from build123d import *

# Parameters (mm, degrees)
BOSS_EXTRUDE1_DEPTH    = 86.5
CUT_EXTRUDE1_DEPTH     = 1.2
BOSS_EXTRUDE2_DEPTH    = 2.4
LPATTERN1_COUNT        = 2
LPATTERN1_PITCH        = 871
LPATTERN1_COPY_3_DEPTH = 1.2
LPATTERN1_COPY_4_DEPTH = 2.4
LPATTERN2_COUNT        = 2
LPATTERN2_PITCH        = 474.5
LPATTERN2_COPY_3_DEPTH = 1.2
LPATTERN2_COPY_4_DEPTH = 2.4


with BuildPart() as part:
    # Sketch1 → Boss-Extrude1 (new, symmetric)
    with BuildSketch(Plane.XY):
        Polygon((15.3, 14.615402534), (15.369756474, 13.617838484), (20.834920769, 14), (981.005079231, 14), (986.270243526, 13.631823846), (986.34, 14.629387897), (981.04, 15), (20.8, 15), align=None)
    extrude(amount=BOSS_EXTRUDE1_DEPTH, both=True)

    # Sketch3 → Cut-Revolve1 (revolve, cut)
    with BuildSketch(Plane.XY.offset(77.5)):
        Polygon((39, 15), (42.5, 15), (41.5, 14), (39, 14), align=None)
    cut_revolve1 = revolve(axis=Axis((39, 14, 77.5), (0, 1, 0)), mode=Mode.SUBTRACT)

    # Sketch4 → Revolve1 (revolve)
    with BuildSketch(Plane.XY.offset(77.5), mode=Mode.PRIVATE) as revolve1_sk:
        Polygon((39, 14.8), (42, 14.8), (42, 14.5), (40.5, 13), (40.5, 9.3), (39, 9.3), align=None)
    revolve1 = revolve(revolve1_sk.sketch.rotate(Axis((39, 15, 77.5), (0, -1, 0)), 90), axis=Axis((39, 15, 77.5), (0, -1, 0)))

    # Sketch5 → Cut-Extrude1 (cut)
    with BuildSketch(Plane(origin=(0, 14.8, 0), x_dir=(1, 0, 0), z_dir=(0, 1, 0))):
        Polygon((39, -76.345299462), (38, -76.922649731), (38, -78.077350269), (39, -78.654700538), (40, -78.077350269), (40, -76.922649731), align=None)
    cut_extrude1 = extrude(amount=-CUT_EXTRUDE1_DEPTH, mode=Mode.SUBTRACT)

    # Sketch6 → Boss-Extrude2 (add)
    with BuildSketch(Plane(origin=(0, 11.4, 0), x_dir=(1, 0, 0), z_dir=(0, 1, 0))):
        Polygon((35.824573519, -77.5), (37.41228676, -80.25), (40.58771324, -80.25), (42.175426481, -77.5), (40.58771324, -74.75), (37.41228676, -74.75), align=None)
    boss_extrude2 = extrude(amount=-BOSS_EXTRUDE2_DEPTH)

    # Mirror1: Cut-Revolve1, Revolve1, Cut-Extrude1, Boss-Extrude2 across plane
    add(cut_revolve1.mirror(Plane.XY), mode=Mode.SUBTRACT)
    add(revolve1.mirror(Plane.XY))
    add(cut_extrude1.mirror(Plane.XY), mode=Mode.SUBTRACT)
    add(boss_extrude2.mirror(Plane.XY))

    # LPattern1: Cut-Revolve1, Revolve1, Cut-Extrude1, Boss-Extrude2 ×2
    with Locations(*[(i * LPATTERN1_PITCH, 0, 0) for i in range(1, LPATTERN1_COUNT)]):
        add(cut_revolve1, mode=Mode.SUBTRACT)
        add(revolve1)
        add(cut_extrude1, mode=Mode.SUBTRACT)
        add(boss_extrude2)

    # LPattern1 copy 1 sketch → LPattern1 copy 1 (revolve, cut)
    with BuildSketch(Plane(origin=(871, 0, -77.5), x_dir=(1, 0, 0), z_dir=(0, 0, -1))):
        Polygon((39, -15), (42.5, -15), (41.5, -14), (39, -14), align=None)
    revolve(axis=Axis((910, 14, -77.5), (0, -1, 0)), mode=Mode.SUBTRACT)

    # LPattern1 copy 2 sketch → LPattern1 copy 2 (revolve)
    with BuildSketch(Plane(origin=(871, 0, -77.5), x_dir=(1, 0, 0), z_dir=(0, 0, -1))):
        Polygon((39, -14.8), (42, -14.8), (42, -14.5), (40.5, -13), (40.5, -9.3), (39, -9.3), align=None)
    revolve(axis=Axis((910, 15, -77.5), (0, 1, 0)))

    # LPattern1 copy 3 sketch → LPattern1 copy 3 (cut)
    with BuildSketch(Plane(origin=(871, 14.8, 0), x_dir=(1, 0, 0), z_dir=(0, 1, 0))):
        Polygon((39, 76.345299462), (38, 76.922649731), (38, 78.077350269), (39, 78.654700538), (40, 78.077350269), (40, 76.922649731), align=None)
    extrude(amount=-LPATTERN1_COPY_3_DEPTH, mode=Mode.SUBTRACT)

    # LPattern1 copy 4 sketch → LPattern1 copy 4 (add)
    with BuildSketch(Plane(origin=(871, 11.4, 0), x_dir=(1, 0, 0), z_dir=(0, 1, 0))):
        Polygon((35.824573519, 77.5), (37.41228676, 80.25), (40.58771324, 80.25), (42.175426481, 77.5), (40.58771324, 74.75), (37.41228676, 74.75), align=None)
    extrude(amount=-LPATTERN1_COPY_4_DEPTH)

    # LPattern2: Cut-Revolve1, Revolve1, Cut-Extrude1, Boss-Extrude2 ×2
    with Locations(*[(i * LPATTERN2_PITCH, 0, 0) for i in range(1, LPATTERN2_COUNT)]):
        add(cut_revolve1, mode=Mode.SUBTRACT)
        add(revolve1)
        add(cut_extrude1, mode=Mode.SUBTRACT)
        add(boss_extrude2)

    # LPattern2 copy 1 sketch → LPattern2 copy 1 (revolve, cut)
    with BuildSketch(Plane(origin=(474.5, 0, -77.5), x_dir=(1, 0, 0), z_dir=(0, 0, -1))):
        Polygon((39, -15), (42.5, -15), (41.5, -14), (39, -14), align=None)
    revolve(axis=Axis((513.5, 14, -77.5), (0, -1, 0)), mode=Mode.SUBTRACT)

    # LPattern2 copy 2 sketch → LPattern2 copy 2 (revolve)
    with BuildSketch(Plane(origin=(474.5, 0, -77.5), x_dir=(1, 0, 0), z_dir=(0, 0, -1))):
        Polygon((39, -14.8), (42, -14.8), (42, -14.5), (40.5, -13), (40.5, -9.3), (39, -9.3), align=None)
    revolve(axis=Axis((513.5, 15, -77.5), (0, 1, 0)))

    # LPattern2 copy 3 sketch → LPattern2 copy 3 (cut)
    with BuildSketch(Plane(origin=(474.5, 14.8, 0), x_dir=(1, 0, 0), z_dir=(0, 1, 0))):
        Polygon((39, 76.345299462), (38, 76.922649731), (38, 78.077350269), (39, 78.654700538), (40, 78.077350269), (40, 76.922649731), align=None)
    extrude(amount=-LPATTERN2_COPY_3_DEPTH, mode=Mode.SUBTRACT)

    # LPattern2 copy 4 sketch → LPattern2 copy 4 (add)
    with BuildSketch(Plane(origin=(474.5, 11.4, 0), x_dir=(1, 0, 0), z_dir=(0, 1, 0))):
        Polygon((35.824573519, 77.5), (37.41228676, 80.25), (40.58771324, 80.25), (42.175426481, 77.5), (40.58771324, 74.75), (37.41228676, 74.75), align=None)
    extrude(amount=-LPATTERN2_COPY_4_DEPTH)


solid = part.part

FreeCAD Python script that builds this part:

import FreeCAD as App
import Part
import Sketcher
Q = App.Units.Quantity

doc = App.newDocument("Part")
body = doc.addObject("PartDesign::Body", "Body")

# Sketch on XY plane
sketch1 = body.newObject("Sketcher::SketchObject", "Sketch")
sketch1.AttachmentSupport = (doc.getObject("XY_Plane"), [""])
sketch1.MapMode = "FlatFace"
sketch1.addGeometry([
    Part.LineSegment(App.Vector(15.3, 14.6, 0), App.Vector(15.4, 13.6, 0)),  # 0
    Part.LineSegment(App.Vector(15.4, 13.6, 0), App.Vector(20.8, 14, 0)),  # 1
    Part.LineSegment(App.Vector(20.8, 14, 0), App.Vector(981, 14, 0)),  # 2
    Part.LineSegment(App.Vector(981, 14, 0), App.Vector(986.3, 13.6, 0)),  # 3
    Part.LineSegment(App.Vector(986.3, 13.6, 0), App.Vector(986.3, 14.6, 0)),  # 4
    Part.LineSegment(App.Vector(986.3, 14.6, 0), App.Vector(981, 15, 0)),  # 5
    Part.LineSegment(App.Vector(981, 15, 0), App.Vector(20.8, 15, 0)),  # 6
    Part.LineSegment(App.Vector(20.8, 15, 0), App.Vector(15.3, 14.6, 0)),  # 7
], False)
sketch1.addConstraint([
    Sketcher.Constraint("Coincident", 0, 2, 1, 1),
    Sketcher.Constraint("Coincident", 1, 2, 2, 1),
    Sketcher.Constraint("Coincident", 2, 2, 3, 1),
    Sketcher.Constraint("Coincident", 3, 2, 4, 1),
    Sketcher.Constraint("Coincident", 4, 2, 5, 1),
    Sketcher.Constraint("Coincident", 5, 2, 6, 1),
    Sketcher.Constraint("Coincident", 6, 2, 7, 1),
    Sketcher.Constraint("Coincident", 7, 2, 0, 1),
    Sketcher.Constraint("Horizontal", 2),
    Sketcher.Constraint("Horizontal", 6),
    Sketcher.Constraint("Perpendicular", 0, 1),
    Sketcher.Constraint("Perpendicular", 3, 4),
    Sketcher.Constraint("Perpendicular", 4, 5),
    Sketcher.Constraint("Parallel", 1, 7),
    Sketcher.Constraint("Equal", 0, 4),
    Sketcher.Constraint("Angle", 0, Q("-86 deg")),
    Sketcher.Constraint("Angle", 3, Q("-4 deg")),
    Sketcher.Constraint("Distance", 0, 1.0),
    Sketcher.Constraint("DistanceY", -1, 1, 1, 2, 14.0),
    Sketcher.Constraint("DistanceY", -1, 1, 5, 2, 15.0),
    Sketcher.Constraint("DistanceX", 6, 2, 6, 1, 960.24),
    Sketcher.Constraint("DistanceX", -1, 1, 6, 2, 20.8),
    Sketcher.Constraint("DistanceX", -1, 1, 7, 2, 15.3),
    Sketcher.Constraint("DistanceX", 5, 2, 4, 2, 5.3),
])
pad1 = body.newObject("PartDesign::Pad", "Pad")
pad1.Profile = sketch1
pad1.Length = 173
pad1.Midplane = True

# Sketch on XY plane
sketch2 = body.newObject("Sketcher::SketchObject", "Sketch001")
sketch2.AttachmentSupport = (doc.getObject("XY_Plane"), [""])
sketch2.MapMode = "FlatFace"
sketch2.AttachmentOffset = App.Placement(App.Vector(0, 0, 77.5), App.Rotation())
sketch2.addGeometry([
    Part.LineSegment(App.Vector(42.5, 15, 0), App.Vector(39, 15, 0)),
    Part.LineSegment(App.Vector(39, 15, 0), App.Vector(39, 14, 0)),
    Part.LineSegment(App.Vector(39, 14, 0), App.Vector(41.5, 14, 0)),
    Part.LineSegment(App.Vector(41.5, 14, 0), App.Vector(42.5, 15, 0)),
], False)
sketch2.addGeometry(Part.LineSegment(App.Vector(39, 14, 0), App.Vector(39, 15, 0)), True)  # axis
sketch2.addConstraint([
    Sketcher.Constraint("Coincident", 0, 2, 1, 1),
    Sketcher.Constraint("Coincident", 1, 2, 2, 1),
    Sketcher.Constraint("Coincident", 2, 2, 3, 1),
    Sketcher.Constraint("Coincident", 3, 2, 0, 1),
    Sketcher.Constraint("Horizontal", 0),
    Sketcher.Constraint("Vertical", 1),
    Sketcher.Constraint("Horizontal", 2),
    Sketcher.Constraint("Vertical", 4),
    Sketcher.Constraint("Coincident", 4, 1, 1, 2),
    Sketcher.Constraint("Horizontal", 3, 2, 4, 2),
    Sketcher.Constraint("DistanceY", 1, 2, 1, 1, 1.0),
    Sketcher.Constraint("Angle", 3, Q("45 deg")),
    Sketcher.Constraint("DistanceX", 0, 2, 0, 1, 3.5),
    Sketcher.Constraint("DistanceX", -1, 1, 0, 2, 39.0),
    Sketcher.Constraint("DistanceY", -1, 1, 0, 2, 15.0),
])
groove = body.newObject("PartDesign::Groove", "Groove")
groove.Profile = sketch2
groove.ReferenceAxis = (sketch2, ["Axis0"])
groove.Angle = 360

# Sketch on XY plane
sketch3 = body.newObject("Sketcher::SketchObject", "Sketch002")
sketch3.AttachmentSupport = (doc.getObject("XY_Plane"), [""])
sketch3.MapMode = "FlatFace"
sketch3.AttachmentOffset = App.Placement(App.Vector(0, 0, 77.5), App.Rotation())
sketch3.addGeometry([
    Part.LineSegment(App.Vector(42, 14.8, 0), App.Vector(39, 14.8, 0)),  # 0
    Part.LineSegment(App.Vector(39, 14.8, 0), App.Vector(39, 9.3, 0)),  # 1
    Part.LineSegment(App.Vector(39, 9.3, 0), App.Vector(40.5, 9.3, 0)),  # 2
    Part.LineSegment(App.Vector(40.5, 9.3, 0), App.Vector(40.5, 13, 0)),  # 3
    Part.LineSegment(App.Vector(40.5, 13, 0), App.Vector(42, 14.5, 0)),  # 4
    Part.LineSegment(App.Vector(42, 14.5, 0), App.Vector(42, 14.8, 0)),  # 5
], False)
sketch3.addGeometry(Part.LineSegment(App.Vector(39, 14.8, 0), App.Vector(39, 9.3, 0)), True)  # axis
sketch3.addConstraint([
    Sketcher.Constraint("Coincident", 0, 2, 1, 1),
    Sketcher.Constraint("Coincident", 1, 2, 2, 1),
    Sketcher.Constraint("Coincident", 2, 2, 3, 1),
    Sketcher.Constraint("Coincident", 3, 2, 4, 1),
    Sketcher.Constraint("Coincident", 4, 2, 5, 1),
    Sketcher.Constraint("Coincident", 5, 2, 0, 1),
    Sketcher.Constraint("Horizontal", 0),
    Sketcher.Constraint("Vertical", 1),
    Sketcher.Constraint("Horizontal", 2),
    Sketcher.Constraint("Vertical", 3),
    Sketcher.Constraint("Vertical", 5),
    Sketcher.Constraint("Vertical", 6),
    Sketcher.Constraint("Coincident", 6, 1, 0, 2),
    Sketcher.Constraint("Horizontal", 2, 2, 6, 2),
    Sketcher.Constraint("DistanceX", 0, 2, 0, 1, 3.0),
    Sketcher.Constraint("Angle", 4, Q("45 deg")),
    Sketcher.Constraint("DistanceX", 2, 1, 2, 2, 1.5),
    Sketcher.Constraint("DistanceY", 1, 2, 1, 1, 5.5),
    Sketcher.Constraint("DistanceY", 3, 1, 3, 2, 3.7),
    Sketcher.Constraint("DistanceX", -1, 1, 0, 2, 39.0),
    Sketcher.Constraint("DistanceY", -1, 1, 3, 2, 13.0),
])
revolution = body.newObject("PartDesign::Revolution", "Revolution")
revolution.Profile = sketch3
revolution.ReferenceAxis = (sketch3, ["Axis0"])
revolution.Angle = 360

# Sketch on XZ plane
sketch4 = body.newObject("Sketcher::SketchObject", "Sketch003")
sketch4.AttachmentSupport = (doc.getObject("XZ_Plane"), [""])
sketch4.MapMode = "FlatFace"
sketch4.AttachmentOffset = App.Placement(App.Vector(0, 0, -14.8), App.Rotation())
sketch4.addGeometry([
    Part.LineSegment(App.Vector(39, 76.3, 0), App.Vector(38, 76.9, 0)),  # 0
    Part.LineSegment(App.Vector(38, 76.9, 0), App.Vector(38, 78.1, 0)),  # 1
    Part.LineSegment(App.Vector(38, 78.1, 0), App.Vector(39, 78.7, 0)),  # 2
    Part.LineSegment(App.Vector(39, 78.7, 0), App.Vector(40, 78.1, 0)),  # 3
    Part.LineSegment(App.Vector(40, 78.1, 0), App.Vector(40, 76.9, 0)),  # 4
    Part.LineSegment(App.Vector(40, 76.9, 0), App.Vector(39, 76.3, 0)),  # 5
], False)
sketch4.addConstraint([
    Sketcher.Constraint("Coincident", 0, 2, 1, 1),
    Sketcher.Constraint("Coincident", 1, 2, 2, 1),
    Sketcher.Constraint("Coincident", 2, 2, 3, 1),
    Sketcher.Constraint("Coincident", 3, 2, 4, 1),
    Sketcher.Constraint("Coincident", 4, 2, 5, 1),
    Sketcher.Constraint("Coincident", 5, 2, 0, 1),
    Sketcher.Constraint("Vertical", 1),
    Sketcher.Constraint("Vertical", 4),
    Sketcher.Constraint("Parallel", 0, 3),
    Sketcher.Constraint("Parallel", 2, 5),
    Sketcher.Constraint("Horizontal", 1, 2, 3, 2),
    Sketcher.Constraint("Horizontal", 0, 2, 4, 2),
    Sketcher.Constraint("Vertical", 2, 2, 5, 2),
    Sketcher.Constraint("Angle", 0, Q("150 deg")),
    Sketcher.Constraint("DistanceX", -1, 1, 0, 2, 38.0),
    Sketcher.Constraint("DistanceX", -1, 1, 2, 2, 39.0),
    Sketcher.Constraint("DistanceY", 1, 1, 1, 2, 1.154701),
    Sketcher.Constraint("DistanceY", -1, 1, 2, 2, 78.654701),
])
pocket1 = body.newObject("PartDesign::Pocket", "Pocket")
pocket1.Profile = sketch4
pocket1.Length = 1.2
pocket1.Reversed = True

# Sketch on XZ plane
sketch5 = body.newObject("Sketcher::SketchObject", "Sketch004")
sketch5.AttachmentSupport = (doc.getObject("XZ_Plane"), [""])
sketch5.MapMode = "FlatFace"
sketch5.AttachmentOffset = App.Placement(App.Vector(0, 0, -11.4), App.Rotation())
sketch5.addGeometry([
    Part.LineSegment(App.Vector(35.8, 77.5, 0), App.Vector(37.4, 80.2, 0)),  # 0
    Part.LineSegment(App.Vector(37.4, 80.2, 0), App.Vector(40.6, 80.2, 0)),  # 1
    Part.LineSegment(App.Vector(40.6, 80.2, 0), App.Vector(42.2, 77.5, 0)),  # 2
    Part.LineSegment(App.Vector(42.2, 77.5, 0), App.Vector(40.6, 74.8, 0)),  # 3
    Part.LineSegment(App.Vector(40.6, 74.8, 0), App.Vector(37.4, 74.8, 0)),  # 4
    Part.LineSegment(App.Vector(37.4, 74.8, 0), App.Vector(35.8, 77.5, 0)),  # 5
], False)
sketch5.addConstraint([
    Sketcher.Constraint("Coincident", 0, 2, 1, 1),
    Sketcher.Constraint("Coincident", 1, 2, 2, 1),
    Sketcher.Constraint("Coincident", 2, 2, 3, 1),
    Sketcher.Constraint("Coincident", 3, 2, 4, 1),
    Sketcher.Constraint("Coincident", 4, 2, 5, 1),
    Sketcher.Constraint("Coincident", 5, 2, 0, 1),
    Sketcher.Constraint("Horizontal", 1),
    Sketcher.Constraint("Horizontal", 4),
    Sketcher.Constraint("Parallel", 0, 3),
    Sketcher.Constraint("Parallel", 2, 5),
    Sketcher.Constraint("Horizontal", 2, 2, 5, 2),
    Sketcher.Constraint("Vertical", 1, 2, 3, 2),
    Sketcher.Constraint("Vertical", 0, 2, 4, 2),
    Sketcher.Constraint("Angle", 0, Q("60 deg")),
    Sketcher.Constraint("DistanceY", -1, 1, 2, 2, 77.5),
    Sketcher.Constraint("DistanceY", 3, 2, 1, 2, 5.5),
    Sketcher.Constraint("DistanceX", 1, 1, 1, 2, 3.175426),
    Sketcher.Constraint("DistanceX", -1, 1, 0, 2, 37.412287),
])
pad2 = body.newObject("PartDesign::Pad", "Pad001")
pad2.Profile = sketch5
pad2.Length = 2.4
doc.recompute()

mirrored = body.newObject("PartDesign::Mirrored", "Mirrored")
mirrored.Originals = [groove, revolution, pocket1, pad2]
mirrored.MirrorPlane = (doc.getObject("XY_Plane"), [""])
body.Tip = mirrored
doc.recompute()

linearpattern = body.newObject("PartDesign::LinearPattern", "LinearPattern")
linearpattern.Originals = [groove, revolution, pocket1, pad2]
linearpattern.Direction = (doc.getObject("X_Axis"), [""])
linearpattern.Mode = "offset"
linearpattern.Offset = 871
linearpattern.Occurrences = 2
body.Tip = linearpattern

# Sketch on XY plane
sketch6 = body.newObject("Sketcher::SketchObject", "Sketch005")
sketch6.AttachmentSupport = (doc.getObject("XY_Plane"), [""])
sketch6.MapMode = "FlatFace"
sketch6.AttachmentOffset = App.Placement(App.Vector(0, 0, -77.5), App.Rotation())
sketch6.addGeometry([
    Part.LineSegment(App.Vector(910, 15, 0), App.Vector(913.5, 15, 0)),
    Part.LineSegment(App.Vector(913.5, 15, 0), App.Vector(912.5, 14, 0)),
    Part.LineSegment(App.Vector(912.5, 14, 0), App.Vector(910, 14, 0)),
    Part.LineSegment(App.Vector(910, 14, 0), App.Vector(910, 15, 0)),
], False)
sketch6.addGeometry(Part.LineSegment(App.Vector(910, 15, 0), App.Vector(910, 14, 0)), True)  # axis
sketch6.addConstraint([
    Sketcher.Constraint("Coincident", 0, 2, 1, 1),
    Sketcher.Constraint("Coincident", 1, 2, 2, 1),
    Sketcher.Constraint("Coincident", 2, 2, 3, 1),
    Sketcher.Constraint("Coincident", 3, 2, 0, 1),
    Sketcher.Constraint("Horizontal", 0),
    Sketcher.Constraint("Horizontal", 2),
    Sketcher.Constraint("Vertical", 3),
    Sketcher.Constraint("Vertical", 4),
    Sketcher.Constraint("Coincident", 4, 1, 3, 2),
    Sketcher.Constraint("Horizontal", 1, 2, 4, 2),
    Sketcher.Constraint("DistanceY", 3, 1, 3, 2, 1.0),
    Sketcher.Constraint("Angle", 1, Q("-135 deg")),
    Sketcher.Constraint("DistanceX", 0, 1, 0, 2, 3.5),
    Sketcher.Constraint("DistanceY", -1, 1, 0, 2, 15.0),
    Sketcher.Constraint("DistanceX", -1, 1, 2, 2, 910.0),
])
groove2 = body.newObject("PartDesign::Groove", "Groove001")
groove2.Profile = sketch6
groove2.ReferenceAxis = (sketch6, ["Axis0"])
groove2.Angle = 360

# Sketch on XY plane
sketch7 = body.newObject("Sketcher::SketchObject", "Sketch006")
sketch7.AttachmentSupport = (doc.getObject("XY_Plane"), [""])
sketch7.MapMode = "FlatFace"
sketch7.AttachmentOffset = App.Placement(App.Vector(0, 0, -77.5), App.Rotation())
sketch7.addGeometry([
    Part.LineSegment(App.Vector(910, 14.8, 0), App.Vector(913, 14.8, 0)),  # 0
    Part.LineSegment(App.Vector(913, 14.8, 0), App.Vector(913, 14.5, 0)),  # 1
    Part.LineSegment(App.Vector(913, 14.5, 0), App.Vector(911.5, 13, 0)),  # 2
    Part.LineSegment(App.Vector(911.5, 13, 0), App.Vector(911.5, 9.3, 0)),  # 3
    Part.LineSegment(App.Vector(911.5, 9.3, 0), App.Vector(910, 9.3, 0)),  # 4
    Part.LineSegment(App.Vector(910, 9.3, 0), App.Vector(910, 14.8, 0)),  # 5
], False)
sketch7.addGeometry(Part.LineSegment(App.Vector(910, 9.3, 0), App.Vector(910, 14.8, 0)), True)  # axis
sketch7.addConstraint([
    Sketcher.Constraint("Coincident", 0, 2, 1, 1),
    Sketcher.Constraint("Coincident", 1, 2, 2, 1),
    Sketcher.Constraint("Coincident", 2, 2, 3, 1),
    Sketcher.Constraint("Coincident", 3, 2, 4, 1),
    Sketcher.Constraint("Coincident", 4, 2, 5, 1),
    Sketcher.Constraint("Coincident", 5, 2, 0, 1),
    Sketcher.Constraint("Horizontal", 0),
    Sketcher.Constraint("Vertical", 1),
    Sketcher.Constraint("Vertical", 3),
    Sketcher.Constraint("Horizontal", 4),
    Sketcher.Constraint("Vertical", 5),
    Sketcher.Constraint("Vertical", 6),
    Sketcher.Constraint("Coincident", 6, 1, 4, 2),
    Sketcher.Constraint("Horizontal", 0, 2, 6, 2),
    Sketcher.Constraint("DistanceX", 0, 1, 0, 2, 3.0),
    Sketcher.Constraint("Angle", 2, Q("-135 deg")),
    Sketcher.Constraint("DistanceX", 4, 2, 4, 1, 1.5),
    Sketcher.Constraint("DistanceY", 1, 2, 1, 1, 0.3),
    Sketcher.Constraint("DistanceY", 3, 2, 3, 1, 3.7),
    Sketcher.Constraint("DistanceX", -1, 1, 0, 2, 913.0),
    Sketcher.Constraint("DistanceY", -1, 1, 2, 2, 13.0),
])
revolution2 = body.newObject("PartDesign::Revolution", "Revolution001")
revolution2.Profile = sketch7
revolution2.ReferenceAxis = (sketch7, ["Axis0"])
revolution2.Angle = 360

# Sketch on XZ plane
sketch8 = body.newObject("Sketcher::SketchObject", "Sketch007")
sketch8.AttachmentSupport = (doc.getObject("XZ_Plane"), [""])
sketch8.MapMode = "FlatFace"
sketch8.AttachmentOffset = App.Placement(App.Vector(0, 0, -14.8), App.Rotation())
sketch8.addGeometry([
    Part.LineSegment(App.Vector(909, -76.9, 0), App.Vector(910, -76.3, 0)),  # 0
    Part.LineSegment(App.Vector(910, -76.3, 0), App.Vector(911, -76.9, 0)),  # 1
    Part.LineSegment(App.Vector(911, -76.9, 0), App.Vector(911, -78.1, 0)),  # 2
    Part.LineSegment(App.Vector(911, -78.1, 0), App.Vector(910, -78.7, 0)),  # 3
    Part.LineSegment(App.Vector(910, -78.7, 0), App.Vector(909, -78.1, 0)),  # 4
    Part.LineSegment(App.Vector(909, -78.1, 0), App.Vector(909, -76.9, 0)),  # 5
], False)
sketch8.addConstraint([
    Sketcher.Constraint("Coincident", 0, 2, 1, 1),
    Sketcher.Constraint("Coincident", 1, 2, 2, 1),
    Sketcher.Constraint("Coincident", 2, 2, 3, 1),
    Sketcher.Constraint("Coincident", 3, 2, 4, 1),
    Sketcher.Constraint("Coincident", 4, 2, 5, 1),
    Sketcher.Constraint("Coincident", 5, 2, 0, 1),
    Sketcher.Constraint("Vertical", 2),
    Sketcher.Constraint("Vertical", 5),
    Sketcher.Constraint("Parallel", 0, 3),
    Sketcher.Constraint("Parallel", 1, 4),
    Sketcher.Constraint("Horizontal", 2, 2, 4, 2),
    Sketcher.Constraint("Horizontal", 1, 2, 5, 2),
    Sketcher.Constraint("Vertical", 0, 2, 3, 2),
    Sketcher.Constraint("Angle", 0, Q("30 deg")),
    Sketcher.Constraint("DistanceX", -1, 1, 0, 2, 910.0),
    Sketcher.Constraint("DistanceX", -1, 1, 1, 2, 911.0),
    Sketcher.Constraint("DistanceY", 2, 2, 2, 1, 1.154701),
    Sketcher.Constraint("DistanceY", 0, 2, -1, 1, 76.345299),
])
pocket2 = body.newObject("PartDesign::Pocket", "Pocket001")
pocket2.Profile = sketch8
pocket2.Length = 1.2
pocket2.Reversed = True

# Sketch on XZ plane
sketch9 = body.newObject("Sketcher::SketchObject", "Sketch008")
sketch9.AttachmentSupport = (doc.getObject("XZ_Plane"), [""])
sketch9.MapMode = "FlatFace"
sketch9.AttachmentOffset = App.Placement(App.Vector(0, 0, -11.4), App.Rotation())
sketch9.addGeometry([
    Part.LineSegment(App.Vector(908.4, -80.2, 0), App.Vector(906.8, -77.5, 0)),  # 0
    Part.LineSegment(App.Vector(906.8, -77.5, 0), App.Vector(908.4, -74.8, 0)),  # 1
    Part.LineSegment(App.Vector(908.4, -74.8, 0), App.Vector(911.6, -74.8, 0)),  # 2
    Part.LineSegment(App.Vector(911.6, -74.8, 0), App.Vector(913.2, -77.5, 0)),  # 3
    Part.LineSegment(App.Vector(913.2, -77.5, 0), App.Vector(911.6, -80.2, 0)),  # 4
    Part.LineSegment(App.Vector(911.6, -80.2, 0), App.Vector(908.4, -80.2, 0)),  # 5
], False)
sketch9.addConstraint([
    Sketcher.Constraint("Coincident", 0, 2, 1, 1),
    Sketcher.Constraint("Coincident", 1, 2, 2, 1),
    Sketcher.Constraint("Coincident", 2, 2, 3, 1),
    Sketcher.Constraint("Coincident", 3, 2, 4, 1),
    Sketcher.Constraint("Coincident", 4, 2, 5, 1),
    Sketcher.Constraint("Coincident", 5, 2, 0, 1),
    Sketcher.Constraint("Horizontal", 2),
    Sketcher.Constraint("Horizontal", 5),
    Sketcher.Constraint("Parallel", 0, 3),
    Sketcher.Constraint("Parallel", 1, 4),
    Sketcher.Constraint("Horizontal", 0, 2, 3, 2),
    Sketcher.Constraint("Vertical", 2, 2, 4, 2),
    Sketcher.Constraint("Vertical", 1, 2, 5, 2),
    Sketcher.Constraint("Angle", 0, Q("120 deg")),
    Sketcher.Constraint("DistanceY", 0, 2, -1, 1, 77.5),
    Sketcher.Constraint("DistanceY", 4, 2, 2, 2, 5.5),
    Sketcher.Constraint("DistanceX", 2, 1, 2, 2, 3.175426),
    Sketcher.Constraint("DistanceX", -1, 1, 0, 2, 906.824574),
])
pad3 = body.newObject("PartDesign::Pad", "Pad002")
pad3.Profile = sketch9
pad3.Length = 2.4
doc.recompute()

linearpattern2 = body.newObject("PartDesign::LinearPattern", "LinearPattern001")
linearpattern2.Originals = [groove, revolution, pocket1, pad2]
linearpattern2.Direction = (doc.getObject("X_Axis"), [""])
linearpattern2.Mode = "offset"
linearpattern2.Offset = 474.5
linearpattern2.Occurrences = 2
body.Tip = linearpattern2

# Sketch on XY plane
sketch10 = body.newObject("Sketcher::SketchObject", "Sketch009")
sketch10.AttachmentSupport = (doc.getObject("XY_Plane"), [""])
sketch10.MapMode = "FlatFace"
sketch10.AttachmentOffset = App.Placement(App.Vector(0, 0, -77.5), App.Rotation())
sketch10.addGeometry([
    Part.LineSegment(App.Vector(513.5, 15, 0), App.Vector(517, 15, 0)),
    Part.LineSegment(App.Vector(517, 15, 0), App.Vector(516, 14, 0)),
    Part.LineSegment(App.Vector(516, 14, 0), App.Vector(513.5, 14, 0)),
    Part.LineSegment(App.Vector(513.5, 14, 0), App.Vector(513.5, 15, 0)),
], False)
sketch10.addGeometry(Part.LineSegment(App.Vector(513.5, 15, 0), App.Vector(513.5, 14, 0)), True)  # axis
sketch10.addConstraint([
    Sketcher.Constraint("Coincident", 0, 2, 1, 1),
    Sketcher.Constraint("Coincident", 1, 2, 2, 1),
    Sketcher.Constraint("Coincident", 2, 2, 3, 1),
    Sketcher.Constraint("Coincident", 3, 2, 0, 1),
    Sketcher.Constraint("Horizontal", 0),
    Sketcher.Constraint("Horizontal", 2),
    Sketcher.Constraint("Vertical", 3),
    Sketcher.Constraint("Vertical", 4),
    Sketcher.Constraint("Coincident", 4, 1, 3, 2),
    Sketcher.Constraint("Horizontal", 1, 2, 4, 2),
    Sketcher.Constraint("DistanceY", 3, 1, 3, 2, 1.0),
    Sketcher.Constraint("Angle", 1, Q("-135 deg")),
    Sketcher.Constraint("DistanceX", 0, 1, 0, 2, 3.5),
    Sketcher.Constraint("DistanceX", -1, 1, 0, 2, 517.0),
    Sketcher.Constraint("DistanceY", -1, 1, 0, 2, 15.0),
])
groove3 = body.newObject("PartDesign::Groove", "Groove002")
groove3.Profile = sketch10
groove3.ReferenceAxis = (sketch10, ["Axis0"])
groove3.Angle = 360

# Sketch on XY plane
sketch11 = body.newObject("Sketcher::SketchObject", "Sketch010")
sketch11.AttachmentSupport = (doc.getObject("XY_Plane"), [""])
sketch11.MapMode = "FlatFace"
sketch11.AttachmentOffset = App.Placement(App.Vector(0, 0, -77.5), App.Rotation())
sketch11.addGeometry([
    Part.LineSegment(App.Vector(513.5, 14.8, 0), App.Vector(516.5, 14.8, 0)),  # 0
    Part.LineSegment(App.Vector(516.5, 14.8, 0), App.Vector(516.5, 14.5, 0)),  # 1
    Part.LineSegment(App.Vector(516.5, 14.5, 0), App.Vector(515, 13, 0)),  # 2
    Part.LineSegment(App.Vector(515, 13, 0), App.Vector(515, 9.3, 0)),  # 3
    Part.LineSegment(App.Vector(515, 9.3, 0), App.Vector(513.5, 9.3, 0)),  # 4
    Part.LineSegment(App.Vector(513.5, 9.3, 0), App.Vector(513.5, 14.8, 0)),  # 5
], False)
sketch11.addGeometry(Part.LineSegment(App.Vector(513.5, 9.3, 0), App.Vector(513.5, 14.8, 0)), True)  # axis
sketch11.addConstraint([
    Sketcher.Constraint("Coincident", 0, 2, 1, 1),
    Sketcher.Constraint("Coincident", 1, 2, 2, 1),
    Sketcher.Constraint("Coincident", 2, 2, 3, 1),
    Sketcher.Constraint("Coincident", 3, 2, 4, 1),
    Sketcher.Constraint("Coincident", 4, 2, 5, 1),
    Sketcher.Constraint("Coincident", 5, 2, 0, 1),
    Sketcher.Constraint("Horizontal", 0),
    Sketcher.Constraint("Vertical", 1),
    Sketcher.Constraint("Vertical", 3),
    Sketcher.Constraint("Horizontal", 4),
    Sketcher.Constraint("Vertical", 5),
    Sketcher.Constraint("Vertical", 6),
    Sketcher.Constraint("Coincident", 6, 1, 4, 2),
    Sketcher.Constraint("Horizontal", 0, 2, 6, 2),
    Sketcher.Constraint("DistanceX", 0, 1, 0, 2, 3.0),
    Sketcher.Constraint("Angle", 2, Q("-135 deg")),
    Sketcher.Constraint("DistanceX", 4, 2, 4, 1, 1.5),
    Sketcher.Constraint("DistanceY", 1, 2, 1, 1, 0.3),
    Sketcher.Constraint("DistanceY", 3, 2, 3, 1, 3.7),
    Sketcher.Constraint("DistanceX", -1, 1, 2, 2, 515.0),
    Sketcher.Constraint("DistanceY", -1, 1, 2, 2, 13.0),
])
revolution3 = body.newObject("PartDesign::Revolution", "Revolution002")
revolution3.Profile = sketch11
revolution3.ReferenceAxis = (sketch11, ["Axis0"])
revolution3.Angle = 360

# Sketch on XZ plane
sketch12 = body.newObject("Sketcher::SketchObject", "Sketch011")
sketch12.AttachmentSupport = (doc.getObject("XZ_Plane"), [""])
sketch12.MapMode = "FlatFace"
sketch12.AttachmentOffset = App.Placement(App.Vector(0, 0, -14.8), App.Rotation())
sketch12.addGeometry([
    Part.LineSegment(App.Vector(512.5, -76.9, 0), App.Vector(513.5, -76.3, 0)),  # 0
    Part.LineSegment(App.Vector(513.5, -76.3, 0), App.Vector(514.5, -76.9, 0)),  # 1
    Part.LineSegment(App.Vector(514.5, -76.9, 0), App.Vector(514.5, -78.1, 0)),  # 2
    Part.LineSegment(App.Vector(514.5, -78.1, 0), App.Vector(513.5, -78.7, 0)),  # 3
    Part.LineSegment(App.Vector(513.5, -78.7, 0), App.Vector(512.5, -78.1, 0)),  # 4
    Part.LineSegment(App.Vector(512.5, -78.1, 0), App.Vector(512.5, -76.9, 0)),  # 5
], False)
sketch12.addConstraint([
    Sketcher.Constraint("Coincident", 0, 2, 1, 1),
    Sketcher.Constraint("Coincident", 1, 2, 2, 1),
    Sketcher.Constraint("Coincident", 2, 2, 3, 1),
    Sketcher.Constraint("Coincident", 3, 2, 4, 1),
    Sketcher.Constraint("Coincident", 4, 2, 5, 1),
    Sketcher.Constraint("Coincident", 5, 2, 0, 1),
    Sketcher.Constraint("Vertical", 2),
    Sketcher.Constraint("Vertical", 5),
    Sketcher.Constraint("Parallel", 0, 3),
    Sketcher.Constraint("Parallel", 1, 4),
    Sketcher.Constraint("Horizontal", 2, 2, 4, 2),
    Sketcher.Constraint("Horizontal", 1, 2, 5, 2),
    Sketcher.Constraint("Vertical", 0, 2, 3, 2),
    Sketcher.Constraint("Angle", 0, Q("30 deg")),
    Sketcher.Constraint("DistanceX", 0, 2, 1, 2, 1.0),
    Sketcher.Constraint("DistanceX", -1, 1, 0, 2, 513.5),
    Sketcher.Constraint("DistanceY", 2, 2, 2, 1, 1.154701),
    Sketcher.Constraint("DistanceY", 0, 2, -1, 1, 76.345299),
])
pocket3 = body.newObject("PartDesign::Pocket", "Pocket002")
pocket3.Profile = sketch12
pocket3.Length = 1.2
pocket3.Reversed = True

# Sketch on XZ plane
sketch13 = body.newObject("Sketcher::SketchObject", "Sketch012")
sketch13.AttachmentSupport = (doc.getObject("XZ_Plane"), [""])
sketch13.MapMode = "FlatFace"
sketch13.AttachmentOffset = App.Placement(App.Vector(0, 0, -11.4), App.Rotation())
sketch13.addGeometry([
    Part.LineSegment(App.Vector(511.9, -80.2, 0), App.Vector(510.3, -77.5, 0)),  # 0
    Part.LineSegment(App.Vector(510.3, -77.5, 0), App.Vector(511.9, -74.8, 0)),  # 1
    Part.LineSegment(App.Vector(511.9, -74.8, 0), App.Vector(515.1, -74.8, 0)),  # 2
    Part.LineSegment(App.Vector(515.1, -74.8, 0), App.Vector(516.7, -77.5, 0)),  # 3
    Part.LineSegment(App.Vector(516.7, -77.5, 0), App.Vector(515.1, -80.2, 0)),  # 4
    Part.LineSegment(App.Vector(515.1, -80.2, 0), App.Vector(511.9, -80.2, 0)),  # 5
], False)
sketch13.addConstraint([
    Sketcher.Constraint("Coincident", 0, 2, 1, 1),
    Sketcher.Constraint("Coincident", 1, 2, 2, 1),
    Sketcher.Constraint("Coincident", 2, 2, 3, 1),
    Sketcher.Constraint("Coincident", 3, 2, 4, 1),
    Sketcher.Constraint("Coincident", 4, 2, 5, 1),
    Sketcher.Constraint("Coincident", 5, 2, 0, 1),
    Sketcher.Constraint("Horizontal", 2),
    Sketcher.Constraint("Horizontal", 5),
    Sketcher.Constraint("Parallel", 0, 3),
    Sketcher.Constraint("Parallel", 1, 4),
    Sketcher.Constraint("Horizontal", 0, 2, 3, 2),
    Sketcher.Constraint("Vertical", 2, 2, 4, 2),
    Sketcher.Constraint("Vertical", 1, 2, 5, 2),
    Sketcher.Constraint("Angle", 0, Q("120 deg")),
    Sketcher.Constraint("DistanceY", 0, 2, -1, 1, 77.5),
    Sketcher.Constraint("DistanceY", 4, 2, 2, 2, 5.5),
    Sketcher.Constraint("DistanceX", 2, 1, 2, 2, 3.175426),
    Sketcher.Constraint("DistanceX", -1, 1, 0, 2, 510.324574),
])
pad4 = body.newObject("PartDesign::Pad", "Pad003")
pad4.Profile = sketch13
pad4.Length = 2.4

doc.recompute()
